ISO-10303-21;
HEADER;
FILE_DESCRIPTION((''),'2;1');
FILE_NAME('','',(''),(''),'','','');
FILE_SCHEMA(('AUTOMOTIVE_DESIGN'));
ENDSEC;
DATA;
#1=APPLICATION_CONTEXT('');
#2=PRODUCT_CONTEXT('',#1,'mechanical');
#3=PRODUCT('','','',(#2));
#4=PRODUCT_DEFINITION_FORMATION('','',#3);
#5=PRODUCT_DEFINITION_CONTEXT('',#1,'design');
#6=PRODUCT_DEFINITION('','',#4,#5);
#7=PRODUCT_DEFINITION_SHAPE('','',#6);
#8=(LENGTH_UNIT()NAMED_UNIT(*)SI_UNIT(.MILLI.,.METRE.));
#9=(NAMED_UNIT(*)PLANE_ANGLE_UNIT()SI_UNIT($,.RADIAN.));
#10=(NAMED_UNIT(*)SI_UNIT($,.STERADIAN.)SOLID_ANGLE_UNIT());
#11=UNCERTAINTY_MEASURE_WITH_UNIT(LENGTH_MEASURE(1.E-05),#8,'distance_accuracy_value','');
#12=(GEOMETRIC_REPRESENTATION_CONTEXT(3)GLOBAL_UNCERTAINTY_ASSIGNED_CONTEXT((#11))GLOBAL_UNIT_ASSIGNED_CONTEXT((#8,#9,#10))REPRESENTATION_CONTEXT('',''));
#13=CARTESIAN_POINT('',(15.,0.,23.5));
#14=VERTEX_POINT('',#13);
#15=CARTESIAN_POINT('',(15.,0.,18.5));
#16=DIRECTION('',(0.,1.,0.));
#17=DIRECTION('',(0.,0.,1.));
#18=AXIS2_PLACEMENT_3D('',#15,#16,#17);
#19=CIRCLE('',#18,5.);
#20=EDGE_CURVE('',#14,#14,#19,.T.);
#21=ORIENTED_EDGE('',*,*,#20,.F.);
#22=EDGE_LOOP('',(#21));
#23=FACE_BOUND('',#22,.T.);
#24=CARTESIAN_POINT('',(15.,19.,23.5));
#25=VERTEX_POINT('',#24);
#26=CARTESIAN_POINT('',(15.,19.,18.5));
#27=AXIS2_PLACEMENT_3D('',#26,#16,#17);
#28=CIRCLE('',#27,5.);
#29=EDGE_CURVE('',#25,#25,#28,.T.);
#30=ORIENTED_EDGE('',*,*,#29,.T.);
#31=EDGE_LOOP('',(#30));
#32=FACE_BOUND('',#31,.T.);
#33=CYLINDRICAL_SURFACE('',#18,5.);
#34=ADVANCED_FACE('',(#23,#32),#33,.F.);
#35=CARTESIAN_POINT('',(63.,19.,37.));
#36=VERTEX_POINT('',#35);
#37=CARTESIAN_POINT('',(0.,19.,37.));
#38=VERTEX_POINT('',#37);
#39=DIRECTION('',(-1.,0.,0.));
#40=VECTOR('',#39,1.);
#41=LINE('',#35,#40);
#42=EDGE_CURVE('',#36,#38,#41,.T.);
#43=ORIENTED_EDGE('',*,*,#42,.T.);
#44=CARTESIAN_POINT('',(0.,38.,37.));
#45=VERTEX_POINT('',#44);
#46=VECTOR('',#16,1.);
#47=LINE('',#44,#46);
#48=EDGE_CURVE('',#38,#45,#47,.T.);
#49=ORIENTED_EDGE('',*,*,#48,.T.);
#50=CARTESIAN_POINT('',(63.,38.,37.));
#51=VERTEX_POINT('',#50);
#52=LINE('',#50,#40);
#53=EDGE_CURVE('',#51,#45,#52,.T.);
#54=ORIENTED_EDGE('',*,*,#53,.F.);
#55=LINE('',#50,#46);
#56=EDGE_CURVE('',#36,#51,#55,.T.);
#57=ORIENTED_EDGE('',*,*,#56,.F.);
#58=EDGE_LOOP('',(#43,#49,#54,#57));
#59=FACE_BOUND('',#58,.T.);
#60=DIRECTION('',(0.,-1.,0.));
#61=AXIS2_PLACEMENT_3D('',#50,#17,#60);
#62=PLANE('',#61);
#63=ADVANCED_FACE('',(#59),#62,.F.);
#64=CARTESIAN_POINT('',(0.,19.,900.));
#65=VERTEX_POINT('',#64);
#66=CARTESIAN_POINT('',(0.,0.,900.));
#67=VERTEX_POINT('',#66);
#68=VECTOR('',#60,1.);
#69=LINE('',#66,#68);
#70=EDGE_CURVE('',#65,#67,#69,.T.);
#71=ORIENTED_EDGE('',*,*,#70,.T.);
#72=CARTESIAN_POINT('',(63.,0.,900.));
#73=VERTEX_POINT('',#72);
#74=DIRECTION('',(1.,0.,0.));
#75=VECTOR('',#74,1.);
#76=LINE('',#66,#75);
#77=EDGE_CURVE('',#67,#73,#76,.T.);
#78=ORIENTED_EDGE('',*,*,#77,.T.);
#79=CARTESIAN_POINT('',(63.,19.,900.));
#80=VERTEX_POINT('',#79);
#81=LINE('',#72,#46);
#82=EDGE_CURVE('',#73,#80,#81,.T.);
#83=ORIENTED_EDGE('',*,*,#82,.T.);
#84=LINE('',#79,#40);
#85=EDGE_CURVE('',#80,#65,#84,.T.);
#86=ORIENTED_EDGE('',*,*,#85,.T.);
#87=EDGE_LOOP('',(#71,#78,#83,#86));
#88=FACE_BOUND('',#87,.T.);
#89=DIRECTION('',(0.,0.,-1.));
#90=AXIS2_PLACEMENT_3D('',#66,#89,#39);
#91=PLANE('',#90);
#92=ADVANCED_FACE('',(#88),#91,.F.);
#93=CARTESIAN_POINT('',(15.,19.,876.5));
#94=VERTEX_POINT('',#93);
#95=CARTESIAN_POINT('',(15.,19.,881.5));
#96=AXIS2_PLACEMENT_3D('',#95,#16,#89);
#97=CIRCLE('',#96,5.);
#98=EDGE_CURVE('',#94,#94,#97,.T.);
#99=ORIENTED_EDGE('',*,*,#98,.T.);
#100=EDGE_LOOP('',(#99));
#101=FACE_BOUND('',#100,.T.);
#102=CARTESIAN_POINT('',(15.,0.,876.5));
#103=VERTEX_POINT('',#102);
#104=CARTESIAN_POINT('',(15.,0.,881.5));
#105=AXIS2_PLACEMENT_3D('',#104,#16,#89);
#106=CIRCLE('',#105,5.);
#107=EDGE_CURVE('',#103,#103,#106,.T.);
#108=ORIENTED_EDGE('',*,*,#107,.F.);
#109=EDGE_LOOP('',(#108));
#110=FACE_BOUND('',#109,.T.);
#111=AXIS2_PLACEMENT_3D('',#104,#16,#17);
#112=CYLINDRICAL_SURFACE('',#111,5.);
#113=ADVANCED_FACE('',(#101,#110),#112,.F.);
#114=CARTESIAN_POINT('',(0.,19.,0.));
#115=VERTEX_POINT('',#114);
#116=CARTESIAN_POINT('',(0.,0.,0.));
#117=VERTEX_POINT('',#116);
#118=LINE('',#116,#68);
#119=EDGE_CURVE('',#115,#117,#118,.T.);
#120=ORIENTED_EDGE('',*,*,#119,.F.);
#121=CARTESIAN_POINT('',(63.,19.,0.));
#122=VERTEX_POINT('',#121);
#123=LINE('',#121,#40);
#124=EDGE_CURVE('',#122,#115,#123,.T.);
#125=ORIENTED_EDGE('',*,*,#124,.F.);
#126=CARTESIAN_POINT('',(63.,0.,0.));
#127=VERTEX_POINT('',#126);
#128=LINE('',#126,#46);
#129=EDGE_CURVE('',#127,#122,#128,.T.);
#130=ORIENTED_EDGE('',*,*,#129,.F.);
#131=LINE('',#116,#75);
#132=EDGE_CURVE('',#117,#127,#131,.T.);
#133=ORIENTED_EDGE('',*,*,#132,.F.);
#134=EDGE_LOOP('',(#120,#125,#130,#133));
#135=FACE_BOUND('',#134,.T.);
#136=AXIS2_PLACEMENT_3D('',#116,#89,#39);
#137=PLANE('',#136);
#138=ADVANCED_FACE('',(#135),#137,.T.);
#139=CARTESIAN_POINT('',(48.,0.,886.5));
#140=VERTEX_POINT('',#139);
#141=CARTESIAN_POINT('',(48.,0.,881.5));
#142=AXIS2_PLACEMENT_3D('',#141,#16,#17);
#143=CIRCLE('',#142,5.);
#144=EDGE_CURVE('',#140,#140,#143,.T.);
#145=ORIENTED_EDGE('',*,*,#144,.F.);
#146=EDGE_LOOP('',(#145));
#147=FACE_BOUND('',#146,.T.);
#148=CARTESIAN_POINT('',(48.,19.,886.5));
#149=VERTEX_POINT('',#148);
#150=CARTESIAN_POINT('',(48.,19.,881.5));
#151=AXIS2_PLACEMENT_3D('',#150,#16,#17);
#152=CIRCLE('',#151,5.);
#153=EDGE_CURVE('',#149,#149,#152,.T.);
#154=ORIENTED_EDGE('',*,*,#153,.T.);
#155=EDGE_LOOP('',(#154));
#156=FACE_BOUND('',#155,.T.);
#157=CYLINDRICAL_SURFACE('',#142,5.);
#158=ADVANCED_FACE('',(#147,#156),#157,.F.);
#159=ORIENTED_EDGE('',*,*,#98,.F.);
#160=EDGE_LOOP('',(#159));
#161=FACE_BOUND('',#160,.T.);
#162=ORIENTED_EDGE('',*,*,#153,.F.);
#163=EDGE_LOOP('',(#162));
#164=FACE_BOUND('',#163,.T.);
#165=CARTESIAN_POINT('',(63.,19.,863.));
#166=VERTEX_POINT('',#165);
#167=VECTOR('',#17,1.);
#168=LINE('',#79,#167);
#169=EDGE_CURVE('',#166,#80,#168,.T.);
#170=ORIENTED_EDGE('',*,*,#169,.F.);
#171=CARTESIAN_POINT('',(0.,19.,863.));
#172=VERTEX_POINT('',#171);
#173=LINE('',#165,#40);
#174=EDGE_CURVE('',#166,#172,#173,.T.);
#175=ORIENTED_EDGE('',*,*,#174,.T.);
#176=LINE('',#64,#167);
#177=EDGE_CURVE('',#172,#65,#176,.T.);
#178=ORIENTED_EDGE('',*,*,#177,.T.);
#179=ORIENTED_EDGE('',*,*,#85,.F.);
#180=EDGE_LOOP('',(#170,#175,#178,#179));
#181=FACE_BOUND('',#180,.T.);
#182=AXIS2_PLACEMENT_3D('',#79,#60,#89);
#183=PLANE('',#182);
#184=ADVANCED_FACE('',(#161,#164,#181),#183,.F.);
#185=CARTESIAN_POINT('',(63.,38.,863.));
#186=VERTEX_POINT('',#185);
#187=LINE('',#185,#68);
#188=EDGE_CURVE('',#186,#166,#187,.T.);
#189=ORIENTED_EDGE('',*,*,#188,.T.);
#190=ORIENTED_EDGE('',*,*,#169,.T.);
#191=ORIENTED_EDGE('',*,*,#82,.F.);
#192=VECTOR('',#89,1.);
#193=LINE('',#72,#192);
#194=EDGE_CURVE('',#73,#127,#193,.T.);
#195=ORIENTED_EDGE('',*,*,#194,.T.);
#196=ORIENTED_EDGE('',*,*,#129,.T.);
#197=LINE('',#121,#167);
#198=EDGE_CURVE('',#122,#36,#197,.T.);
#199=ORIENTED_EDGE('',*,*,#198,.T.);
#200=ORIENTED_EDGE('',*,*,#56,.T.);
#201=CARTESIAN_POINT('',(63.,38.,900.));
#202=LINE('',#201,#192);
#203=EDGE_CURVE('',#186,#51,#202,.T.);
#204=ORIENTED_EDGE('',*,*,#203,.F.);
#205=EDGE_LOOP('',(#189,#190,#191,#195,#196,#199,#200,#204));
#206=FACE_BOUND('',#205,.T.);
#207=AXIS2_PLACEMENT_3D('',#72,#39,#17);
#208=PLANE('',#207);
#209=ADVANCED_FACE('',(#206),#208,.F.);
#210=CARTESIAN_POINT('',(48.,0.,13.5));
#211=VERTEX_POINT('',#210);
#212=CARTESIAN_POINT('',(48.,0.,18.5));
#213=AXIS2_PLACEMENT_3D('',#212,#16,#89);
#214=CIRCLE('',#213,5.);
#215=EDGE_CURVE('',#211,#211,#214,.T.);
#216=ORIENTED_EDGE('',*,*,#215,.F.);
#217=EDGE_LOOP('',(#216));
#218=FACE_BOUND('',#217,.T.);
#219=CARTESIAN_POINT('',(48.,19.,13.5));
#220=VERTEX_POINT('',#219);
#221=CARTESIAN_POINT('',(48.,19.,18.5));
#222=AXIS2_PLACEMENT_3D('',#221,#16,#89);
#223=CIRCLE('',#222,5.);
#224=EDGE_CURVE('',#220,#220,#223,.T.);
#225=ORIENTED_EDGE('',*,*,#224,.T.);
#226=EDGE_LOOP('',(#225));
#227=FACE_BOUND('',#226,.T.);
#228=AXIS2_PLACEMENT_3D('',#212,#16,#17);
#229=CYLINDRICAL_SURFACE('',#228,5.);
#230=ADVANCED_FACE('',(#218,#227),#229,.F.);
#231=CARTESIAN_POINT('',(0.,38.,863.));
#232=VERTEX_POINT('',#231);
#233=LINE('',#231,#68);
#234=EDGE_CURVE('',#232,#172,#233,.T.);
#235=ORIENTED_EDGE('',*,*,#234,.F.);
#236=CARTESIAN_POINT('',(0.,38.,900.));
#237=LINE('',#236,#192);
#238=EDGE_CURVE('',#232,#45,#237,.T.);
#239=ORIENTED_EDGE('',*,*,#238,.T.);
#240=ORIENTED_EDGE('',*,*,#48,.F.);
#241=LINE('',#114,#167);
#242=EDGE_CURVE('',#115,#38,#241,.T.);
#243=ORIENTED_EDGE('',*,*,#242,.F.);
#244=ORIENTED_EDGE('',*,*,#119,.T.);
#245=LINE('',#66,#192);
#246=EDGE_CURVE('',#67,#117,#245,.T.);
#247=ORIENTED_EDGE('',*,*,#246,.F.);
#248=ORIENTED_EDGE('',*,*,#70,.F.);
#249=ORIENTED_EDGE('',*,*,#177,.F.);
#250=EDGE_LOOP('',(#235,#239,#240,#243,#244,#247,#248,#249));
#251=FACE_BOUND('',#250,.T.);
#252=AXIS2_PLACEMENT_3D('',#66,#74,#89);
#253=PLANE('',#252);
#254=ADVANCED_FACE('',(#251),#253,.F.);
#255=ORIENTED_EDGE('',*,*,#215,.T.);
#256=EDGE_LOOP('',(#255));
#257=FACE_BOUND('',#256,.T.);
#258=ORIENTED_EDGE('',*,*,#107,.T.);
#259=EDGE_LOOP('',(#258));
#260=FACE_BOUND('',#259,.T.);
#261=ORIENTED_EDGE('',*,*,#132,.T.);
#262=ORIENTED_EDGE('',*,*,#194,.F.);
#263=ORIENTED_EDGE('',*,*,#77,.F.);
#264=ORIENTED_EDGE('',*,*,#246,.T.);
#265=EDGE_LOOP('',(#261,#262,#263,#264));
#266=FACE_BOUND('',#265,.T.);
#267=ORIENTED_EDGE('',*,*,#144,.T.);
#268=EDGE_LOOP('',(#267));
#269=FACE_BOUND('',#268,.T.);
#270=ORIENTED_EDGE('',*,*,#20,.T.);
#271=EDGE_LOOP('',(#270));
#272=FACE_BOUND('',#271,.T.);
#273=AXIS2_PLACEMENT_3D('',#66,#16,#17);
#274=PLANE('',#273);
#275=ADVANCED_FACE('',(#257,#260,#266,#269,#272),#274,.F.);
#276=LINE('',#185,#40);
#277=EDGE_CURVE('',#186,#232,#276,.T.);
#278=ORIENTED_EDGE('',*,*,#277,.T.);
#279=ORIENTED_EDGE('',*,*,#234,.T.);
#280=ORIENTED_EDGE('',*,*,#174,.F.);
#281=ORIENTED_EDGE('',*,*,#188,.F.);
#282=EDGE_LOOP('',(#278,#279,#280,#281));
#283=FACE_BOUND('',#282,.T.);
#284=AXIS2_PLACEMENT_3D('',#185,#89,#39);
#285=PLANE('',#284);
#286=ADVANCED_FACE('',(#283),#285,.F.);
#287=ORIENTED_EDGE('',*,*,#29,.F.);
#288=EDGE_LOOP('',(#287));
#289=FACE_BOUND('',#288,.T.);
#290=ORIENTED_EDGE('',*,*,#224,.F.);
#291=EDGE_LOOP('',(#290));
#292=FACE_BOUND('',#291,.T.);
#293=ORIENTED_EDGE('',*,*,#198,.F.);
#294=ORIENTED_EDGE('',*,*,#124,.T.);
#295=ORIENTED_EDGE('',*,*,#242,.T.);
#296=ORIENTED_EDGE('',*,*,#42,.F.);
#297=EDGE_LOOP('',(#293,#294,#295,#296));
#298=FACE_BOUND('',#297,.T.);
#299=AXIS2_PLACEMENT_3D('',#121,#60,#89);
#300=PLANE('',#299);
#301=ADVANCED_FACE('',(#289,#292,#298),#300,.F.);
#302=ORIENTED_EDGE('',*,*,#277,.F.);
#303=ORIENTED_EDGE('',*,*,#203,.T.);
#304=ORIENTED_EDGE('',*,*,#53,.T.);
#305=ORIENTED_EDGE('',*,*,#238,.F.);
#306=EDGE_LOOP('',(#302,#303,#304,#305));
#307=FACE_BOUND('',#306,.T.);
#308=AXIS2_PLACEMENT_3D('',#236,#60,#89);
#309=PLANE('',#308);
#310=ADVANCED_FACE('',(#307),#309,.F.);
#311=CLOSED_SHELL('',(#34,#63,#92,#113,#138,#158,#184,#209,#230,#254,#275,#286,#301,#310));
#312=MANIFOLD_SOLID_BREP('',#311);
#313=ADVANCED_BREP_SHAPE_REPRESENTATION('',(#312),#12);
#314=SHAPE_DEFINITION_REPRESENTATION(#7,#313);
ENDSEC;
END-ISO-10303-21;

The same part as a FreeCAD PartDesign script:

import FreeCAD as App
import Part
import Sketcher
from FreeCAD import Vector

doc = App.newDocument("Part")
body = doc.addObject("PartDesign::Body", "Body")

sketch1 = body.newObject("Sketcher::SketchObject", "Sketch")
sketch1.AttachmentSupport = (doc.getObject("XY_Plane"), [""])
sketch1.MapMode = "FlatFace"
sketch1.addGeometry(Part.LineSegment(Vector(0, 38, 0), Vector(0, 0, 0)), False)
sketch1.addGeometry(Part.LineSegment(Vector(0, 0, 0), Vector(63, 0, 0)), False)
sketch1.addGeometry(Part.LineSegment(Vector(63, 0, 0), Vector(63, 38, 0)), False)
sketch1.addGeometry(Part.LineSegment(Vector(63, 38, 0), Vector(0, 38, 0)), False)
sketch1.addConstraint(Sketcher.Constraint("Coincident", 0, 2, 1, 1))
sketch1.addConstraint(Sketcher.Constraint("Coincident", 1, 2, 2, 1))
sketch1.addConstraint(Sketcher.Constraint("Coincident", 2, 2, 3, 1))
sketch1.addConstraint(Sketcher.Constraint("Coincident", 3, 2, 0, 1))
sketch1.addConstraint(Sketcher.Constraint("Vertical", 0))
sketch1.addConstraint(Sketcher.Constraint("Horizontal", 1))
sketch1.addConstraint(Sketcher.Constraint("Vertical", 2))
sketch1.addConstraint(Sketcher.Constraint("Horizontal", 3))
sketch1.addConstraint(Sketcher.Constraint("Coincident", 0, 2, -1, 1))
sketch1.addConstraint(Sketcher.Constraint("DistanceX", 1, 1, 1, 2, 63.0))
sketch1.addConstraint(Sketcher.Constraint("DistanceY", 0, 2, 0, 1, 38.0))
pad1 = body.newObject("PartDesign::Pad", "Pad")
pad1.Profile = sketch1
pad1.Length = 900

sketch2 = body.newObject("Sketcher::SketchObject", "Sketch001")
sketch2.AttachmentSupport = (doc.getObject("YZ_Plane"), [""])
sketch2.MapMode = "FlatFace"
sketch2.addGeometry(Part.LineSegment(Vector(38, 0, 0), Vector(19, 0, 0)), False)
sketch2.addGeometry(Part.LineSegment(Vector(19, 0, 0), Vector(19, 37, 0)), False)
sketch2.addGeometry(Part.LineSegment(Vector(19, 37, 0), Vector(38, 37, 0)), False)
sketch2.addGeometry(Part.LineSegment(Vector(38, 37, 0), Vector(38, 0, 0)), False)
sketch2.addGeometry(Part.LineSegment(Vector(38, 863, 0), Vector(19, 863, 0)), False)
sketch2.addGeometry(Part.LineSegment(Vector(19, 863, 0), Vector(19, 900, 0)), False)
sketch2.addGeometry(Part.LineSegment(Vector(19, 900, 0), Vector(38, 900, 0)), False)
sketch2.addGeometry(Part.LineSegment(Vector(38, 900, 0), Vector(38, 863, 0)), False)
sketch2.addConstraint(Sketcher.Constraint("Coincident", 0, 2, 1, 1))
sketch2.addConstraint(Sketcher.Constraint("Coincident", 1, 2, 2, 1))
sketch2.addConstraint(Sketcher.Constraint("Coincident", 2, 2, 3, 1))
sketch2.addConstraint(Sketcher.Constraint("Coincident", 3, 2, 0, 1))
sketch2.addConstraint(Sketcher.Constraint("Coincident", 4, 2, 5, 1))
sketch2.addConstraint(Sketcher.Constraint("Coincident", 5, 2, 6, 1))
sketch2.addConstraint(Sketcher.Constraint("Coincident", 6, 2, 7, 1))
sketch2.addConstraint(Sketcher.Constraint("Coincident", 7, 2, 4, 1))
sketch2.addConstraint(Sketcher.Constraint("Horizontal", 0))
sketch2.addConstraint(Sketcher.Constraint("Vertical", 1))
sketch2.addConstraint(Sketcher.Constraint("Horizontal", 2))
sketch2.addConstraint(Sketcher.Constraint("Vertical", 3))
sketch2.addConstraint(Sketcher.Constraint("Horizontal", 4))
sketch2.addConstraint(Sketcher.Constraint("Vertical", 5))
sketch2.addConstraint(Sketcher.Constraint("Horizontal", 6))
sketch2.addConstraint(Sketcher.Constraint("Vertical", 7))
sketch2.addConstraint(Sketcher.Constraint("PointOnObject", 0, 2, -1))
sketch2.addConstraint(Sketcher.Constraint("Vertical", 1, 2, 4, 2))
sketch2.addConstraint(Sketcher.Constraint("Vertical", 3, 2, 6, 2))
sketch2.addConstraint(Sketcher.Constraint("Equal", 3, 5))
sketch2.addConstraint(Sketcher.Constraint("DistanceX", 0, 2, 0, 1, 19.0))
sketch2.addConstraint(Sketcher.Constraint("DistanceY", 1, 1, 1, 2, 37.0))
sketch2.addConstraint(Sketcher.Constraint("DistanceX", -1, 1, 0, 2, 19.0))
sketch2.addConstraint(Sketcher.Constraint("DistanceY", -1, 1, 4, 2, 863.0))
pocket1 = body.newObject("PartDesign::Pocket", "Pocket")
pocket1.Profile = sketch2
pocket1.Type = "ThroughAll"
pocket1.Reversed = True

sketch3 = body.newObject("Sketcher::SketchObject", "Sketch002")
sketch3.AttachmentSupport = (doc.getObject("XZ_Plane"), [""])
sketch3.MapMode = "FlatFace"
sketch3.AttachmentOffset = App.Placement(Vector(0, 0, -19), App.Rotation())
sketch3.addGeometry(Part.Circle(Vector(15, 18, 0), Vector(0, 0, 1), 5), False)
sketch3.addGeometry(Part.Circle(Vector(48, 18, 0), Vector(0, 0, 1), 5), False)
sketch3.addGeometry(Part.Circle(Vector(48, 882, 0), Vector(0, 0, 1), 5), False)
sketch3.addGeometry(Part.Circle(Vector(15, 882, 0), Vector(0, 0, 1), 5), False)
sketch3.addConstraint(Sketcher.Constraint("Equal", 0, 1))
sketch3.addConstraint(Sketcher.Constraint("Equal", 1, 2))
sketch3.addConstraint(Sketcher.Constraint("Equal", 2, 3))
sketch3.addConstraint(Sketcher.Constraint("Horizontal", 0, 3, 1, 3))
sketch3.addConstraint(Sketcher.Constraint("Horizontal", 2, 3, 3, 3))
sketch3.addConstraint(Sketcher.Constraint("Vertical", 1, 3, 2, 3))
sketch3.addConstraint(Sketcher.Constraint("Vertical", 0, 3, 3, 3))
sketch3.addConstraint(Sketcher.Constraint("Diameter", 0, 10.0))
sketch3.addConstraint(Sketcher.Constraint("DistanceX", -1, 1, 0, 3, 15.0))
sketch3.addConstraint(Sketcher.Constraint("DistanceX", -1, 1, 1, 3, 48.0))
sketch3.addConstraint(Sketcher.Constraint("DistanceY", 1, 3, 2, 3, 863.0))
sketch3.addConstraint(Sketcher.Constraint("DistanceY", -1, 1, 0, 3, 18.5))
pocket2 = body.newObject("PartDesign::Pocket", "Pocket001")
pocket2.Profile = sketch3
pocket2.Type = "ThroughAll"
pocket2.Reversed = True

doc.recompute()
